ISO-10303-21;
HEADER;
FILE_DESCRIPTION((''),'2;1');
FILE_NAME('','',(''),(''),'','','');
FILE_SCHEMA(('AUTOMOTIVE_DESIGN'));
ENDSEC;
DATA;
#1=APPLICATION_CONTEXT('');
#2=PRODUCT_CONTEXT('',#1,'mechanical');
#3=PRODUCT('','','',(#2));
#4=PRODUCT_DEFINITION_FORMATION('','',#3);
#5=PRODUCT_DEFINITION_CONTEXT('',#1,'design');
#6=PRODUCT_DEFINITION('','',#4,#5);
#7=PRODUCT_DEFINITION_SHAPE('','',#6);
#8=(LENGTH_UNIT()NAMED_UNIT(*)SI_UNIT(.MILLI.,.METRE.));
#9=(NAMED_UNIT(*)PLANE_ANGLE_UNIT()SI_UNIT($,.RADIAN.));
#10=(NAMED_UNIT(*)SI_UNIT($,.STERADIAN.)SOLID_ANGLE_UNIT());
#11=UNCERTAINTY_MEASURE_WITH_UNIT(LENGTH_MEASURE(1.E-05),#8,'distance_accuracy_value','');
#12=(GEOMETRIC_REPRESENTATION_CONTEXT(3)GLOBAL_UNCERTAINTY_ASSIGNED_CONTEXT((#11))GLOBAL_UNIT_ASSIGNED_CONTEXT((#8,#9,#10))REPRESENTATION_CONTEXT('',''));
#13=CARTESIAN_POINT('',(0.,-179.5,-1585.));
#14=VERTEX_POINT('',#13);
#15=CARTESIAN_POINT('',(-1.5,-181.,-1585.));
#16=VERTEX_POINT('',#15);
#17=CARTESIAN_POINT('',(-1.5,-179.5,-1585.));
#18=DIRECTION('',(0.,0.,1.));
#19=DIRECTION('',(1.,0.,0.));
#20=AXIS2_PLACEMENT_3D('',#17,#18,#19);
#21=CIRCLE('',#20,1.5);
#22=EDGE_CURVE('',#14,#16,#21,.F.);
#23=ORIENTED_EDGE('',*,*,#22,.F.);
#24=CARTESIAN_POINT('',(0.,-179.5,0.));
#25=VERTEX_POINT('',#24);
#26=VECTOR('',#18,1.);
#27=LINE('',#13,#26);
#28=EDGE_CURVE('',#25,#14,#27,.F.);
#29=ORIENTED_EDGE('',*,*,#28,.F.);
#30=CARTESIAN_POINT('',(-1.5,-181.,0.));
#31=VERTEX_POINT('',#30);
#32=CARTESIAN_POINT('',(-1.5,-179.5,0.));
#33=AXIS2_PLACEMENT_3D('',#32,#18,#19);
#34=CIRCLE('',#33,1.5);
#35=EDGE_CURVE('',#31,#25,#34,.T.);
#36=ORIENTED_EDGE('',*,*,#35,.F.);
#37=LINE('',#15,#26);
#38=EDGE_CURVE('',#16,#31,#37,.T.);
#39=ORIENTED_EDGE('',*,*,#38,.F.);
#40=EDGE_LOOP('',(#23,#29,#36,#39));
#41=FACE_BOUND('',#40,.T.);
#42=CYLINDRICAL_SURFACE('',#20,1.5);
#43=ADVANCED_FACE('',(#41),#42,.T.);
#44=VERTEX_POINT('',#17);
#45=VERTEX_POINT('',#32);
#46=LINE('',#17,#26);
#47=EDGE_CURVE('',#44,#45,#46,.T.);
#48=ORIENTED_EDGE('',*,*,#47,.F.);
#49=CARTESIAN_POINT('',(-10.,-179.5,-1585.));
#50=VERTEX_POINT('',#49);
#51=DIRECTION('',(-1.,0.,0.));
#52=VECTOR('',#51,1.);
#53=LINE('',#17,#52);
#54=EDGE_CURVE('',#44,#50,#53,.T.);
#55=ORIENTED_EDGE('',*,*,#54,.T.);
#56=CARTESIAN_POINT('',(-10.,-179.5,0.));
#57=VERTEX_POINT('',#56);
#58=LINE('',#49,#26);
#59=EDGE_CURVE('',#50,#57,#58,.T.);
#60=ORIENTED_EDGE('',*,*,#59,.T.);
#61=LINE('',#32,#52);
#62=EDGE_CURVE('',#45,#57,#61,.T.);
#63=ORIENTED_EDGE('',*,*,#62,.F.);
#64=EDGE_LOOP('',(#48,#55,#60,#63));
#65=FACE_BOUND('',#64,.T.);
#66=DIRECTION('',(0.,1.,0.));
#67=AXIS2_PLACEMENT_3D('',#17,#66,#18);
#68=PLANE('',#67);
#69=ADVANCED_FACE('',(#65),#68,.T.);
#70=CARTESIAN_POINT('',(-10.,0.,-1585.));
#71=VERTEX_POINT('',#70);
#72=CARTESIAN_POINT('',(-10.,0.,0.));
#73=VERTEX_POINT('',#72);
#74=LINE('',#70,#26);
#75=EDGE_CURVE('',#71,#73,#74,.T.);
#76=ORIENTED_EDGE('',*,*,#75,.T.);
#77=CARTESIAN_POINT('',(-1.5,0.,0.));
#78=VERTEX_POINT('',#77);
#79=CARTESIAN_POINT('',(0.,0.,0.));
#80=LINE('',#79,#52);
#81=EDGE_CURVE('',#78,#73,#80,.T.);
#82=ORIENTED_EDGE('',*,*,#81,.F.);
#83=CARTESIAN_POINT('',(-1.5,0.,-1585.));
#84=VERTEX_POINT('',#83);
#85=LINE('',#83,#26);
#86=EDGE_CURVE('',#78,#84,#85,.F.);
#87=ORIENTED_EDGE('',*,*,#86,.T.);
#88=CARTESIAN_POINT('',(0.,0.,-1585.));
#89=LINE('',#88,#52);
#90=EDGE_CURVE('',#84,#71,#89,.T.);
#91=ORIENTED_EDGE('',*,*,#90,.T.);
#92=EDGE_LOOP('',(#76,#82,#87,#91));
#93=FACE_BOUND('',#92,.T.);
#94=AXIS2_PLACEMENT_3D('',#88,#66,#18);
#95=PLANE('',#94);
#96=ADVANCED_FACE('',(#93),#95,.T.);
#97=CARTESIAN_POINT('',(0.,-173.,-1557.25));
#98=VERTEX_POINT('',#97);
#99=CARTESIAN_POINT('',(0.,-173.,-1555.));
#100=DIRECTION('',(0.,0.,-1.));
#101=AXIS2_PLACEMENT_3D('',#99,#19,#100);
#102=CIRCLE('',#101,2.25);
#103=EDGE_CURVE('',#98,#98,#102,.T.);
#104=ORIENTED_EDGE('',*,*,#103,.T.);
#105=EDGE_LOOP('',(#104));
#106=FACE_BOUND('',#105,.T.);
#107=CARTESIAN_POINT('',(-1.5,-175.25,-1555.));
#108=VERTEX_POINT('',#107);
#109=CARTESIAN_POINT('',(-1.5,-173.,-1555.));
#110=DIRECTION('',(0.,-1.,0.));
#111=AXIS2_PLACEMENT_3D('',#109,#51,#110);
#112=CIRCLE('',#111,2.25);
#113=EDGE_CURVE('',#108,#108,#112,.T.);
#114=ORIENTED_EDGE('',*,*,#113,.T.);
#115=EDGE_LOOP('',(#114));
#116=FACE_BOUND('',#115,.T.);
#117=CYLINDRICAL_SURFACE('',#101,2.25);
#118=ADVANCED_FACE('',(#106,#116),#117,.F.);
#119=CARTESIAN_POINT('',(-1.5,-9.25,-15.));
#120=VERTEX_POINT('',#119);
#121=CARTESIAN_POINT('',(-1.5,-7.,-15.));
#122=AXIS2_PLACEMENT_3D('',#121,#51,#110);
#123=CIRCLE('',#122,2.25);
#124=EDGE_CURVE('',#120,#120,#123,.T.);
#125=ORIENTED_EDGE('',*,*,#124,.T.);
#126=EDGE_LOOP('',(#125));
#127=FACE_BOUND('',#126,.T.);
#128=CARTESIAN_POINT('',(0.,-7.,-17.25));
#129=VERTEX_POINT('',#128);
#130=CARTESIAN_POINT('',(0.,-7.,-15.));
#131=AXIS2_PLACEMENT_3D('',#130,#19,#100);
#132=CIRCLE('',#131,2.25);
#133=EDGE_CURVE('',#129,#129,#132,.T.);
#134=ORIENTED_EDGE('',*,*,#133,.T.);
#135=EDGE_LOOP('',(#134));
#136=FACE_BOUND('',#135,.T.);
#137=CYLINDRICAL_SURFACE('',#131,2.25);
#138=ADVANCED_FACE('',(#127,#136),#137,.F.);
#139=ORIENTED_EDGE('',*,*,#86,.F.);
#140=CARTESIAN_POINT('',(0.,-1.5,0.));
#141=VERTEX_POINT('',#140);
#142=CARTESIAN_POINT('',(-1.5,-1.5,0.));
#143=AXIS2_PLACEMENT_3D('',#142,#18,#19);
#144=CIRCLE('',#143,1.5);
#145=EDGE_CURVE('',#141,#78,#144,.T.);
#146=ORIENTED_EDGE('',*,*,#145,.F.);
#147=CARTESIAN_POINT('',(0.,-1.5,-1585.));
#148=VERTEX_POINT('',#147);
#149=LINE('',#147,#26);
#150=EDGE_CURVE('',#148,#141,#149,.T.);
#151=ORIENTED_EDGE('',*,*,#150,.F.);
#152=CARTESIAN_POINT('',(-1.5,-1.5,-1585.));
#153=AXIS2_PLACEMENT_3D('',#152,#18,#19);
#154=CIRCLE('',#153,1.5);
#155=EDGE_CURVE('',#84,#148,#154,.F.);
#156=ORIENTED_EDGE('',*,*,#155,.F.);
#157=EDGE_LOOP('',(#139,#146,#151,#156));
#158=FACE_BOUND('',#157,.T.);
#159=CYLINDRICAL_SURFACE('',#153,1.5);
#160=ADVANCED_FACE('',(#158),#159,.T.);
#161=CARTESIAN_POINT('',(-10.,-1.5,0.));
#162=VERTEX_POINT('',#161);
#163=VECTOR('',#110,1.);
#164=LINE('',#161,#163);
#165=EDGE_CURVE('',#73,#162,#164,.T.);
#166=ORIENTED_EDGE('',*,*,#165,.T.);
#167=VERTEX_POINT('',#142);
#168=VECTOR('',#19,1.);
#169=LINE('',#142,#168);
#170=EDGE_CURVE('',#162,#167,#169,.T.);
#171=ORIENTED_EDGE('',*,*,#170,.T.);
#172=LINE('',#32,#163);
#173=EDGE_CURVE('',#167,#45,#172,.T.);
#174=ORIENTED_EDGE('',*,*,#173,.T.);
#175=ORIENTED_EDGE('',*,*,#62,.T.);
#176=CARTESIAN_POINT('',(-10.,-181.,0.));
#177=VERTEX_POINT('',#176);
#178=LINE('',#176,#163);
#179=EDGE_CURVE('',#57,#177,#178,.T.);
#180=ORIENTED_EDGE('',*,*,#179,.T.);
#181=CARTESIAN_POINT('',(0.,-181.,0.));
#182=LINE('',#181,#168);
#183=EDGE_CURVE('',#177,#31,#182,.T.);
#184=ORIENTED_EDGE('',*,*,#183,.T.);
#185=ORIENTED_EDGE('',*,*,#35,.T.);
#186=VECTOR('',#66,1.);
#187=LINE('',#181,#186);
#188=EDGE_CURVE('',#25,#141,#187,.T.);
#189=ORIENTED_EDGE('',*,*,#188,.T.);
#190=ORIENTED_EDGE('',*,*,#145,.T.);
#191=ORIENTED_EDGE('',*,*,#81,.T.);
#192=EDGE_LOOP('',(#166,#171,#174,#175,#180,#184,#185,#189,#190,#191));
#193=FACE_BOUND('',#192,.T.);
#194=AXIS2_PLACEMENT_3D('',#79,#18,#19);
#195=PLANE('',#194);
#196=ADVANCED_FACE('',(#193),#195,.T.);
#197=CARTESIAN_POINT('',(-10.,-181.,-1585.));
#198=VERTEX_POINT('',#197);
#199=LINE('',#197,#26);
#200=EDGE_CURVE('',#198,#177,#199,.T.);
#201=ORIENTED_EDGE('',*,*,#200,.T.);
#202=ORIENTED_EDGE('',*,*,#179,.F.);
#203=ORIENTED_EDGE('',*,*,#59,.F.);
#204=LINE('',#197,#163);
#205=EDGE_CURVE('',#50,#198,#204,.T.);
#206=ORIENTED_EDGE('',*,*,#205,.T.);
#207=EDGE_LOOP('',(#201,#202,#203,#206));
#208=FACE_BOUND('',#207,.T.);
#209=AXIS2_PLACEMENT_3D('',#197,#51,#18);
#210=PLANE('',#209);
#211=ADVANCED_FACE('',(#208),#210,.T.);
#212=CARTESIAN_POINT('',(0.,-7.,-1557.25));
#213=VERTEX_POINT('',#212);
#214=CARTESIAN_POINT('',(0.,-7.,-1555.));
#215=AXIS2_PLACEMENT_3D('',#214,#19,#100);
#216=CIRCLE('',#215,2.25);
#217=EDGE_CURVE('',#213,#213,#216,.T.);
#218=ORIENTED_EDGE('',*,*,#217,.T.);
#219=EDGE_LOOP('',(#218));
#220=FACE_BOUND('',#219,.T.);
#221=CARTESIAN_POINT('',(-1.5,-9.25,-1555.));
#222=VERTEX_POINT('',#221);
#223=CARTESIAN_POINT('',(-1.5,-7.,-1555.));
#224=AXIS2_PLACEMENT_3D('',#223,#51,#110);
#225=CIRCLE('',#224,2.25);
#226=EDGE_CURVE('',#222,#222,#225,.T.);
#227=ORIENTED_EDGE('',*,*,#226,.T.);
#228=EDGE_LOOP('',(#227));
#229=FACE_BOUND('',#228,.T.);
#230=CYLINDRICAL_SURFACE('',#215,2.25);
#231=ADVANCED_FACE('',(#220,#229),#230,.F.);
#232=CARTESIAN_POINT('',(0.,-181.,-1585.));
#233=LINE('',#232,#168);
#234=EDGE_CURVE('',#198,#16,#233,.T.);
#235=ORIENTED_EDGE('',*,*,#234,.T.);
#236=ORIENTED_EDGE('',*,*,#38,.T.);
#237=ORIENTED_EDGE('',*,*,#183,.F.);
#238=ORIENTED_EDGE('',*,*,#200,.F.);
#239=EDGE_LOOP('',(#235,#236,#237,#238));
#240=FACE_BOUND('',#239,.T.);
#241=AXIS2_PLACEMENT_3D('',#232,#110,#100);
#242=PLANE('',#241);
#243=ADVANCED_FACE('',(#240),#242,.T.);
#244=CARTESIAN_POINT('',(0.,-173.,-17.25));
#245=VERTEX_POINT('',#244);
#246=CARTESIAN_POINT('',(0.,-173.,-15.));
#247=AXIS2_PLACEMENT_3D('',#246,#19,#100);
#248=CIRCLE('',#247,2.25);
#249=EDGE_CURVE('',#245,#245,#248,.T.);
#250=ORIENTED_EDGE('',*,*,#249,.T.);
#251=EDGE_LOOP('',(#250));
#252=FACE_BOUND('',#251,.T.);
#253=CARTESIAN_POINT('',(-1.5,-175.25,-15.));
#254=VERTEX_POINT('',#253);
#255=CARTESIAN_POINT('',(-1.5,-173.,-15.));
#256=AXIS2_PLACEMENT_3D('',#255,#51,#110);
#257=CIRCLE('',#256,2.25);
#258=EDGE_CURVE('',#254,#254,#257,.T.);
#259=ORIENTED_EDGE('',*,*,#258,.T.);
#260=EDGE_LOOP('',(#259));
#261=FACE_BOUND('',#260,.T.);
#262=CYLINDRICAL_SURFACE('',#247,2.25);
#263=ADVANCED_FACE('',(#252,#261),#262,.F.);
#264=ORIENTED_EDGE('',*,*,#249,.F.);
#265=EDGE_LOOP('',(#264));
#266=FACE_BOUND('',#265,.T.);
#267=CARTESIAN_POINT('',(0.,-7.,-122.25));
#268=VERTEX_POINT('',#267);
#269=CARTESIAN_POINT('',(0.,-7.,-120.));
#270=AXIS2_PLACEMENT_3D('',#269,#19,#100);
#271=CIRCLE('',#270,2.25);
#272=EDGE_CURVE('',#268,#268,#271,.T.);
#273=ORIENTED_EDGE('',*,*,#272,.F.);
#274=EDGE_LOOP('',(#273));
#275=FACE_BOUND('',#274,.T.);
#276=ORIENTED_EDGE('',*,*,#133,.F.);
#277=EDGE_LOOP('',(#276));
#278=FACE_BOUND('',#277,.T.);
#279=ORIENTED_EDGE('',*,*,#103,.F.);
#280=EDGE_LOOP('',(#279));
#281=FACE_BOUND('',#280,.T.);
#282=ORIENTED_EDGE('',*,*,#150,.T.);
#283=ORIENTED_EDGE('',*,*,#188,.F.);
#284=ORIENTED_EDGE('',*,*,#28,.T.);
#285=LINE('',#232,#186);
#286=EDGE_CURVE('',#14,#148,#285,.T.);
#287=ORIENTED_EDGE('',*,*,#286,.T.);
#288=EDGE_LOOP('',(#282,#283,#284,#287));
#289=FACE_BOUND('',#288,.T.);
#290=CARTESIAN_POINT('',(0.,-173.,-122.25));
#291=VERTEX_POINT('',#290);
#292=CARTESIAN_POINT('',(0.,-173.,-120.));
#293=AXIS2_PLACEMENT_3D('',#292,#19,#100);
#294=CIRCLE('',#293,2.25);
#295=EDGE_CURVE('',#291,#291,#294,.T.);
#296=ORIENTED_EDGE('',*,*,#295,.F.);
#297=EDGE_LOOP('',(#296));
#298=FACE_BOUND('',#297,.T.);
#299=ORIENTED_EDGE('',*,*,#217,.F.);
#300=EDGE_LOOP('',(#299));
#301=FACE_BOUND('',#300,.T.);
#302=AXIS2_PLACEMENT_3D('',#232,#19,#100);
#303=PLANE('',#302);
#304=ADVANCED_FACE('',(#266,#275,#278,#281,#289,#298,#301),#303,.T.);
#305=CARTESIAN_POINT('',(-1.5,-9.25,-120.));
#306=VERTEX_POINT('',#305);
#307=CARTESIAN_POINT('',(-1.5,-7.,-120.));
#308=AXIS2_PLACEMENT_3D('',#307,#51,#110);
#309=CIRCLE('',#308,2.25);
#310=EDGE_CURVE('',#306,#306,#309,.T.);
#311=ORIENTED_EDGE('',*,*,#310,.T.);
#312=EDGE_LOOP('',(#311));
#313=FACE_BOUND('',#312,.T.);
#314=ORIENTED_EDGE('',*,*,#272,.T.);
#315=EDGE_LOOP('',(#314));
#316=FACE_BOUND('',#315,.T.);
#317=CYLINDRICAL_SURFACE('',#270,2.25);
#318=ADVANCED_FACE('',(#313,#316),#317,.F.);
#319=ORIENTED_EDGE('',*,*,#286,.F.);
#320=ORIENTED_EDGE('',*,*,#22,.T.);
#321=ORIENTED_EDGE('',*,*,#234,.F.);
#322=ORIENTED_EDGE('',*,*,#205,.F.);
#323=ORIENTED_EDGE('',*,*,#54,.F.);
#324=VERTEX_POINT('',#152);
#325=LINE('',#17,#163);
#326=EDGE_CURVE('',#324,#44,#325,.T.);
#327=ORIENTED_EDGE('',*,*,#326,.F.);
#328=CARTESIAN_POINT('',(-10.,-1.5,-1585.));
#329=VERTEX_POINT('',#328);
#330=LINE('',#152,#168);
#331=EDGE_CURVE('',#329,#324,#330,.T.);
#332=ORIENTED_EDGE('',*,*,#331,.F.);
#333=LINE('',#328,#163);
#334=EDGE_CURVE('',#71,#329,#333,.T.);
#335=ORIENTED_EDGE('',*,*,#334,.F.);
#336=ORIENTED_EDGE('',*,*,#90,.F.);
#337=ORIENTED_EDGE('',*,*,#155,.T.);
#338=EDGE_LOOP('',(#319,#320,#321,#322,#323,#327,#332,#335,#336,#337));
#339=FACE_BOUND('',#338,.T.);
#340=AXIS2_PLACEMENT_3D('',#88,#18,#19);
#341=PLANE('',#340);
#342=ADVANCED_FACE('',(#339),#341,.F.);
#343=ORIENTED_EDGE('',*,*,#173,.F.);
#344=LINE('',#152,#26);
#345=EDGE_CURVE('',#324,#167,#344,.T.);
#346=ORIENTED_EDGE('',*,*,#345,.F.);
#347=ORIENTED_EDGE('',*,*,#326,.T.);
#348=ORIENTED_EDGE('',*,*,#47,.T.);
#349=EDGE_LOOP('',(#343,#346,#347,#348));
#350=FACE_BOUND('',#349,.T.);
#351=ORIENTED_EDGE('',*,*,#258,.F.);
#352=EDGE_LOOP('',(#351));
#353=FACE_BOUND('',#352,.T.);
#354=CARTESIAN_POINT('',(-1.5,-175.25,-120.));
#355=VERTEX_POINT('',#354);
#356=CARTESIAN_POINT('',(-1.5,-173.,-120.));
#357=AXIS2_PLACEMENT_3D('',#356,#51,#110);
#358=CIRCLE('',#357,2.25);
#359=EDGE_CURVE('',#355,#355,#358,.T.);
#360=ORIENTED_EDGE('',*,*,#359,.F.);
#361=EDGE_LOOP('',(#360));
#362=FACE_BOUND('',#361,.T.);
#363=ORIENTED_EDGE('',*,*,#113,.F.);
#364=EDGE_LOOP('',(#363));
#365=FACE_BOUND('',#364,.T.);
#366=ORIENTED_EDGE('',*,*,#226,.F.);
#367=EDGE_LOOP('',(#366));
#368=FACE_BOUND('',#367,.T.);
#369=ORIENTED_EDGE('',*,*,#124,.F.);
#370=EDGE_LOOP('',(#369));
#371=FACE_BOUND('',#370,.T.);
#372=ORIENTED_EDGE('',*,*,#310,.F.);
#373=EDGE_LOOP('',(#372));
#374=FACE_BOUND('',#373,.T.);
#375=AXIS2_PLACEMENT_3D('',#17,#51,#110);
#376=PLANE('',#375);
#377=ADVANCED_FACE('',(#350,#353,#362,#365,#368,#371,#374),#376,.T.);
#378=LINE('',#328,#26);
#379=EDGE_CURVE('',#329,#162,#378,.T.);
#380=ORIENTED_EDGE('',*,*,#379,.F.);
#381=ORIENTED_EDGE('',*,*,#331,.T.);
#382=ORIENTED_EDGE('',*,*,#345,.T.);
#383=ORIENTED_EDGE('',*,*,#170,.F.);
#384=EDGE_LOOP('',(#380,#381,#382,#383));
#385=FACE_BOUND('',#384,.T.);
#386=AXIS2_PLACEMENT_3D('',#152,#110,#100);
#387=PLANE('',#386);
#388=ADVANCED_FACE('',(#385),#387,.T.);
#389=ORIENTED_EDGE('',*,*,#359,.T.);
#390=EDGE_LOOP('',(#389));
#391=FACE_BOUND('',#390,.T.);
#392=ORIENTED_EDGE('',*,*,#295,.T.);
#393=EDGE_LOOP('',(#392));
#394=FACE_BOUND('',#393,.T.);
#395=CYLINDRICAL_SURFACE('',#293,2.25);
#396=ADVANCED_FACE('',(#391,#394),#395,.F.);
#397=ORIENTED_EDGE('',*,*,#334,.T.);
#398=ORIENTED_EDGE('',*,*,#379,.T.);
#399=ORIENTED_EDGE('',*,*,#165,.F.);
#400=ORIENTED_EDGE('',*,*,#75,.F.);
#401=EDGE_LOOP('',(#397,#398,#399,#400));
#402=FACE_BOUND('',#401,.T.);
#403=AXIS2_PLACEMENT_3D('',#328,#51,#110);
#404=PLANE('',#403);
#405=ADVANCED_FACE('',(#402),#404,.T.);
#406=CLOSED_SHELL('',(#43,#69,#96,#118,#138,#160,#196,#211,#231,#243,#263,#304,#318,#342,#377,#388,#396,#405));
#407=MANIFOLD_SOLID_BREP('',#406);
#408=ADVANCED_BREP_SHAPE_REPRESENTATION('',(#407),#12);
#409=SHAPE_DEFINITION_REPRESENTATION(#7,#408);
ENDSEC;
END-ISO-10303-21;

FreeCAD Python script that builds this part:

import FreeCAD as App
import Part
import Sketcher
Q = App.Units.Quantity


def edges_at(feature, points):
    """Names of the edges that pass closest to the given points."""
    edges = feature.Shape.Edges
    near = lambda p: min(range(len(edges)), key=lambda i: edges[i].distToShape(Part.Vertex(*p))[0])
    return sorted({f"Edge{near(p) + 1}" for p in points})

doc = App.newDocument("Part")
params = doc.addObject("Spreadsheet::Sheet", "Params")
for row, (alias, value) in enumerate([
    ("sketch1_width", "10 mm"),
    ("sketch1_height", "178 mm"),
    ("sketch1_height2", "181 mm"),
    ("sketch1_width2", "8.5 mm"),
    ("pad1_length", "1585 mm"),
    ("fillet_radius", "1.5 mm"),
    ("sketch2_diameter", "4.5 mm"),
    ("hole_diameter", "4.5 mm"),
    ("hole_depth", "1.5 mm"),
    ("linearpattern_pitch", "166 mm"),
], start=1):
    params.set(f"A{row}", alias)
    params.set(f"B{row}", "=" + value)
    params.setAlias(f"B{row}", alias)

body = doc.addObject("PartDesign::Body", "Body")

sketch1 = body.newObject("Sketcher::SketchObject", "Sketch")
sketch1.AttachmentSupport = (doc.getObject("XY_Plane"), [""])
sketch1.MapMode = "FlatFace"
sketch1.addGeometry([
    Part.LineSegment(App.Vector(-10, 0, 0), App.Vector(-10, -1.5, 0)),
    Part.LineSegment(App.Vector(-10, -1.5, 0), App.Vector(-1.5, -1.5, 0)),
    Part.LineSegment(App.Vector(-1.5, -1.5, 0), App.Vector(-1.5, -179.5, 0)),
    Part.LineSegment(App.Vector(-1.5, -179.5, 0), App.Vector(-10, -179.5, 0)),
    Part.LineSegment(App.Vector(-10, -179.5, 0), App.Vector(-10, -181, 0)),
    Part.LineSegment(App.Vector(-10, -181, 0), App.Vector(0, -181, 0)),
    Part.LineSegment(App.Vector(0, -181, 0), App.Vector(0, 0, 0)),
    Part.LineSegment(App.Vector(0, 0, 0), App.Vector(-10, 0, 0)),
], False)
sketch1.addConstraint([
    Sketcher.Constraint("Coincident", 0, 2, 1, 1),
    Sketcher.Constraint("Coincident", 1, 2, 2, 1),
    Sketcher.Constraint("Coincident", 2, 2, 3, 1),
    Sketcher.Constraint("Coincident", 3, 2, 4, 1),
    Sketcher.Constraint("Coincident", 4, 2, 5, 1),
    Sketcher.Constraint("Coincident", 5, 2, 6, 1),
    Sketcher.Constraint("Coincident", 6, 2, 7, 1),
    Sketcher.Constraint("Coincident", 7, 2, 0, 1),
    Sketcher.Constraint("Vertical", 0),
    Sketcher.Constraint("Horizontal", 1),
    Sketcher.Constraint("Vertical", 2),
    Sketcher.Constraint("Horizontal", 3),
    Sketcher.Constraint("Vertical", 4),
    Sketcher.Constraint("Horizontal", 5),
    Sketcher.Constraint("Vertical", 6),
    Sketcher.Constraint("Horizontal", 7),
    Sketcher.Constraint("Coincident", 6, 2, -1, 1),
    Sketcher.Constraint("Vertical", 0, 2, 3, 2),
    Sketcher.Constraint("Equal", 0, 4),
    Sketcher.Constraint("DistanceX", 5, 1, 5, 2, Q("10 mm")),
    Sketcher.Constraint("DistanceY", 2, 2, 2, 1, Q("178 mm")),
    Sketcher.Constraint("DistanceY", 6, 1, 6, 2, Q("181 mm")),
    Sketcher.Constraint("DistanceX", 1, 1, 1, 2, Q("8.5 mm")),
])
sketch1.setExpression("Constraints[19]", "Params.sketch1_width")
sketch1.setExpression("Constraints[20]", "Params.sketch1_height")
sketch1.setExpression("Constraints[21]", "Params.sketch1_height2")
sketch1.setExpression("Constraints[22]", "Params.sketch1_width2")
pad1 = body.newObject("PartDesign::Pad", "Pad")
pad1.Profile = sketch1
pad1.setExpression("Length", "Params.pad1_length")
pad1.Reversed = True
doc.recompute()

fillet = body.newObject("PartDesign::Fillet", "Fillet")
fillet.Base = (pad1, edges_at(pad1, [(0, -181, -792.5), (0, 0, -792.5)]))
fillet.setExpression("Radius", "Params.fillet_radius")

sketch2 = body.newObject("Sketcher::SketchObject", "Sketch001")
sketch2.AttachmentSupport = (doc.getObject("YZ_Plane"), [""])
sketch2.MapMode = "FlatFace"
sketch2.addGeometry([
    Part.Circle(App.Vector(-7, -15, 0), App.Vector(0, 0, 1), 2.25),
    Part.Circle(App.Vector(-7, -120, 0), App.Vector(0, 0, 1), 2.25),
    Part.Circle(App.Vector(-7, -1555, 0), App.Vector(0, 0, 1), 2.25),
], False)
sketch2.addConstraint([
    Sketcher.Constraint("Equal", 0, 1),
    Sketcher.Constraint("Equal", 1, 2),
    Sketcher.Constraint("Vertical", 0, 3, 1, 3),
    Sketcher.Constraint("Vertical", 1, 3, 2, 3),
    Sketcher.Constraint("Diameter", 0, Q("4.5 mm")),
    Sketcher.Constraint("DistanceX", 0, 3, -1, 1, Q("7 mm")),
    Sketcher.Constraint("DistanceY", 0, 3, -1, 1, Q("15 mm")),
    Sketcher.Constraint("DistanceY", 1, 3, -1, 1, Q("120 mm")),
    Sketcher.Constraint("DistanceY", 2, 3, -1, 1, Q("1555 mm")),
])
sketch2.setExpression("Constraints[4]", "Params.sketch2_diameter")
doc.recompute()
hole = body.newObject("PartDesign::Hole", "Hole")
hole.Profile = sketch2
hole.ThreadType = "None"
hole.setExpression("Diameter", "Params.hole_diameter")
hole.DepthType = "Dimension"
hole.setExpression("Depth", "Params.hole_depth")
hole.DrillPoint = "Flat"
doc.recompute()

linearpattern = body.newObject("PartDesign::LinearPattern", "LinearPattern")
linearpattern.Originals = [hole]
linearpattern.Direction = (doc.getObject("Y_Axis"), [""])
linearpattern.Mode = "offset"
linearpattern.setExpression("Offset", "Params.linearpattern_pitch")
linearpattern.Occurrences = 2
linearpattern.Reversed = True
body.Tip = linearpattern

doc.recompute()
